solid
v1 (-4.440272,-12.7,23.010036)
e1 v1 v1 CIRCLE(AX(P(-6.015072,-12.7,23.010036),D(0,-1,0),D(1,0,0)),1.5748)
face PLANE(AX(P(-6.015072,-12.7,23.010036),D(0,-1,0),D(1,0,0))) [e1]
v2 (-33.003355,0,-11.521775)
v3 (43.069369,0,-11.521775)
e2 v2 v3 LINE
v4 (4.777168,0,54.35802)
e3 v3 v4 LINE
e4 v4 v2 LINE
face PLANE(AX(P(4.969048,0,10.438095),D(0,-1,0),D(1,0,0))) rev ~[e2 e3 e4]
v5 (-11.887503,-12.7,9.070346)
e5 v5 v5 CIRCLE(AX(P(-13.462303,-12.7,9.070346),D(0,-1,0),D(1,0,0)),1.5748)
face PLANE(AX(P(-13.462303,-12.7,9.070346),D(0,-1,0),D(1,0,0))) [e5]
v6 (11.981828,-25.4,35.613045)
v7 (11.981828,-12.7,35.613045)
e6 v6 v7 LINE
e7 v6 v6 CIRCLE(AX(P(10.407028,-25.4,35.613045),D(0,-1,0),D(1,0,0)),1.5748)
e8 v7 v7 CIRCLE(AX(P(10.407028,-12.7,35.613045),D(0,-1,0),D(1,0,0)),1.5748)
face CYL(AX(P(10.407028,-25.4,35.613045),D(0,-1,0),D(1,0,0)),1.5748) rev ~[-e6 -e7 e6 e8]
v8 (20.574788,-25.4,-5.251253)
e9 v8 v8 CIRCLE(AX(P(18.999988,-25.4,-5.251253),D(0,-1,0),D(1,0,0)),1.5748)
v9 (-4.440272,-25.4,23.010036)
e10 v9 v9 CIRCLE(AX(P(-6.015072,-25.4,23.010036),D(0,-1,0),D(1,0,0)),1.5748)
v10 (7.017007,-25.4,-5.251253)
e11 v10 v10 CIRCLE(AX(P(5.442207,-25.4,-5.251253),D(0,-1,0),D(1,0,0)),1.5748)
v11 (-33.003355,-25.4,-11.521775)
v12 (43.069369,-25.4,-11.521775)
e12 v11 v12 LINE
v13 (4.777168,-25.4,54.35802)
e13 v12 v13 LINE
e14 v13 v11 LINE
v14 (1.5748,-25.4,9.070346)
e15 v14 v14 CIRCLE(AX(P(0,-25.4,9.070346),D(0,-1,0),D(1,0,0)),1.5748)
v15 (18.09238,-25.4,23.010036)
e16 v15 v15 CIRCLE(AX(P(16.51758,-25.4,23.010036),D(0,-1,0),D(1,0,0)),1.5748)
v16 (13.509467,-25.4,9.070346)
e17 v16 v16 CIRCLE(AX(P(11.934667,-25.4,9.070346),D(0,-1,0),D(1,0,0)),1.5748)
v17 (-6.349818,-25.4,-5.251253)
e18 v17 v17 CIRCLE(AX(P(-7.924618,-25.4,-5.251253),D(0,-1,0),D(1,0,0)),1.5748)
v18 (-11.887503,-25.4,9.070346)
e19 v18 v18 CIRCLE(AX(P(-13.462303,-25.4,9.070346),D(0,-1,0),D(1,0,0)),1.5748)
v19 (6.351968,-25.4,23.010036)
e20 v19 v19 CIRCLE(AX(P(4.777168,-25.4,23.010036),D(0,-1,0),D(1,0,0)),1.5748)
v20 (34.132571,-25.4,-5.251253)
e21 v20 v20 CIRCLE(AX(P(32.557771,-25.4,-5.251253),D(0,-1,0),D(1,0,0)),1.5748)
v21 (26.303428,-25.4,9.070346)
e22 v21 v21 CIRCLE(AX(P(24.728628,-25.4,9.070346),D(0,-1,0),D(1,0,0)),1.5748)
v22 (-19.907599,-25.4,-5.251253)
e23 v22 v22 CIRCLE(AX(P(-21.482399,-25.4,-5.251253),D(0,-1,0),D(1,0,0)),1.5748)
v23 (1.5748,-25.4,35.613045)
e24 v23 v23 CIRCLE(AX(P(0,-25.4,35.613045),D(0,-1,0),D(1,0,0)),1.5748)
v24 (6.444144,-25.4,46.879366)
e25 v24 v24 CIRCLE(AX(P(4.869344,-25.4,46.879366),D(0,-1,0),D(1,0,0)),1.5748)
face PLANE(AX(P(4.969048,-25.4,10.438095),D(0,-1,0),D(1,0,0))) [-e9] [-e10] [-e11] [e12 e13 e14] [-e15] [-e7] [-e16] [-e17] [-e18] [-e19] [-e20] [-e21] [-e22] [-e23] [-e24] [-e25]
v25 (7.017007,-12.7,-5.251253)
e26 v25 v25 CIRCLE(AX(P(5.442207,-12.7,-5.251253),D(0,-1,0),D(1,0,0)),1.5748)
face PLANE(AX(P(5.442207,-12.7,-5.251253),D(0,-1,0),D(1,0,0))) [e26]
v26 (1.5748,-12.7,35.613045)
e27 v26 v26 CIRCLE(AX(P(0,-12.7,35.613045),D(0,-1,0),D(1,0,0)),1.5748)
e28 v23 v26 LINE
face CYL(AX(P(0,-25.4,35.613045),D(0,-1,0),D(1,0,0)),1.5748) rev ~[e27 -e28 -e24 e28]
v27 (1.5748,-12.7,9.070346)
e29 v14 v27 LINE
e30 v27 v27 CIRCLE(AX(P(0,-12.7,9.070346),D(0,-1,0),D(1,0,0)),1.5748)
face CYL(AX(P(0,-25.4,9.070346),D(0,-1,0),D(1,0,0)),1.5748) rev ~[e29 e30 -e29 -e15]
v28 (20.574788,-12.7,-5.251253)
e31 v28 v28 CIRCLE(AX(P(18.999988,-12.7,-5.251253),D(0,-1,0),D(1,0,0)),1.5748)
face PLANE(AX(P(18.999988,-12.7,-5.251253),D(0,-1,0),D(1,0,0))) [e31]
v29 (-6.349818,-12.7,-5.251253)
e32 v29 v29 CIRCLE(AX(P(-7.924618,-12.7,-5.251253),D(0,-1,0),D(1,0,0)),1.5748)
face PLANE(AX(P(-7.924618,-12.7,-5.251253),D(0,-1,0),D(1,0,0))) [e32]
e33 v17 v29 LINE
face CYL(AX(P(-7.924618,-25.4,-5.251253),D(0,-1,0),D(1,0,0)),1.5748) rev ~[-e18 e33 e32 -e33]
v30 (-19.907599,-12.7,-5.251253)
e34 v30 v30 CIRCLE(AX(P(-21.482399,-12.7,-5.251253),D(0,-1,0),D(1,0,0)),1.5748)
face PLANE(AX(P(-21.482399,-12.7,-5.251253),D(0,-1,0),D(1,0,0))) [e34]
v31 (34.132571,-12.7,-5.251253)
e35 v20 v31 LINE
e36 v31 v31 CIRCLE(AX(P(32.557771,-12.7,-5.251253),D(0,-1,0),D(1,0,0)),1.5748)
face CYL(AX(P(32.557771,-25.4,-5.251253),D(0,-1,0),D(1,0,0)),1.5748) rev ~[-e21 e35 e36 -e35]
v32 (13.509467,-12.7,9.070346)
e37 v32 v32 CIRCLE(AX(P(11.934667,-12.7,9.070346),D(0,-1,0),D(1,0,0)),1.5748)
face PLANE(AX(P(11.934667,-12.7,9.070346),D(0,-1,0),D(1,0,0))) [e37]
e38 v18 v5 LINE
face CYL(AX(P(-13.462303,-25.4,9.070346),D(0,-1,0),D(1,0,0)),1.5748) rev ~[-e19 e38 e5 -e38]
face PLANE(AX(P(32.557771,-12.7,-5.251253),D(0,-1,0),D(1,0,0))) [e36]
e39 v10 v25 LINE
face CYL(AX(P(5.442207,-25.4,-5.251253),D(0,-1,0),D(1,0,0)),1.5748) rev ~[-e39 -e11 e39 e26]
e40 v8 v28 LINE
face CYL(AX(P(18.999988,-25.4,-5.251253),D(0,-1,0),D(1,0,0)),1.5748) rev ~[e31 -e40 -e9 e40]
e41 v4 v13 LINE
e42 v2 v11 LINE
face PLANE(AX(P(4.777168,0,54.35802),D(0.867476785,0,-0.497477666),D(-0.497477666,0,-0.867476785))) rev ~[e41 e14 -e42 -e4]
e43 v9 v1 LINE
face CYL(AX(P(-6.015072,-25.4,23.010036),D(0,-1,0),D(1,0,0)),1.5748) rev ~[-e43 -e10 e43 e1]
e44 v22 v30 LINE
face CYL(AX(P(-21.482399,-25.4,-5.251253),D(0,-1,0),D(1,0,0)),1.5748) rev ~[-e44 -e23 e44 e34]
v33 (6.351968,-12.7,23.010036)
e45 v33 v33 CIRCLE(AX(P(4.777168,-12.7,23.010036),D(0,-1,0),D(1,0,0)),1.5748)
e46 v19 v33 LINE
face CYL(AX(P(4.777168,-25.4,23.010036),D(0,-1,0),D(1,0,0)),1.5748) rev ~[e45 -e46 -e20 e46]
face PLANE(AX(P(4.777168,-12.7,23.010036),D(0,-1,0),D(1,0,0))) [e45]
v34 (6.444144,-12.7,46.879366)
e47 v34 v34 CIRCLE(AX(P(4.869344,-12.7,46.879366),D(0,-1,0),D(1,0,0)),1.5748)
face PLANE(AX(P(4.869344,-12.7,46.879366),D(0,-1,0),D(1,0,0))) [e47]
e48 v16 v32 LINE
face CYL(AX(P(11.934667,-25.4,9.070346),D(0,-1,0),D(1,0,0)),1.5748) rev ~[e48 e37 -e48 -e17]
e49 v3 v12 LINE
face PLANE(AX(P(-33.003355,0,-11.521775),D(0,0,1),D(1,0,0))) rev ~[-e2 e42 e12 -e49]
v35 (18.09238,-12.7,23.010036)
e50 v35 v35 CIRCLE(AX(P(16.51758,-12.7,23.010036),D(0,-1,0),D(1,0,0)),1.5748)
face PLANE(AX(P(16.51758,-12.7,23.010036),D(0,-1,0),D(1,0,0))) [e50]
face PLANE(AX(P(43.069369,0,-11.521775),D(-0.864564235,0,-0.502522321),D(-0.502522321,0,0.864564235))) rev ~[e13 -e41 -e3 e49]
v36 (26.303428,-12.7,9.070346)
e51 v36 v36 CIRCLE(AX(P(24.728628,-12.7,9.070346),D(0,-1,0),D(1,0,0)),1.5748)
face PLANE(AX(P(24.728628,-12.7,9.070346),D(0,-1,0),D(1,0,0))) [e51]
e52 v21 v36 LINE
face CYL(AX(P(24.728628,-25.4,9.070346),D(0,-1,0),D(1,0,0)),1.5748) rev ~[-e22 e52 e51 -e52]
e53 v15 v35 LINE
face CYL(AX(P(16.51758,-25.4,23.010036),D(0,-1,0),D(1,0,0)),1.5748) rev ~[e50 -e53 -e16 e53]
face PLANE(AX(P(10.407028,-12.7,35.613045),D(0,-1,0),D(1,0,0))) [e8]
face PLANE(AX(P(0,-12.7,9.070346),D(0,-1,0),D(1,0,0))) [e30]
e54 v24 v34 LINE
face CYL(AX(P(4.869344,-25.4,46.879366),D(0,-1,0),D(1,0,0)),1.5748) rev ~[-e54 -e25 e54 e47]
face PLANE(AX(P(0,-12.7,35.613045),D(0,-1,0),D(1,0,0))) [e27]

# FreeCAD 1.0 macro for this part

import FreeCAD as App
import Part
import Sketcher
from FreeCAD import Vector
Q = App.Units.Quantity

doc = App.newDocument("Part")
body = doc.addObject("PartDesign::Body", "Body")

# Sketch on XZ plane
sketch1 = body.newObject("Sketcher::SketchObject", "Sketch")
sketch1.AttachmentSupport = (doc.getObject("XZ_Plane"), [""])
sketch1.MapMode = "FlatFace"
sketch1.addGeometry([
    Part.LineSegment(Vector(5, 54, 0), Vector(-33, -12, 0)),
    Part.LineSegment(Vector(-33, -12, 0), Vector(43, -12, 0)),
    Part.LineSegment(Vector(43, -12, 0), Vector(5, 54, 0)),
], False)
sketch1.addConstraint([
    Sketcher.Constraint("Coincident", 0, 2, 1, 1),
    Sketcher.Constraint("Coincident", 1, 2, 2, 1),
    Sketcher.Constraint("Coincident", 2, 2, 0, 1),
    Sketcher.Constraint("Horizontal", 1),
    Sketcher.Constraint("Distance", 2, Q("3 in")),
    Sketcher.Constraint("DistanceX", 2, 2, 1, 2, Q("38.292201 mm")),
    Sketcher.Constraint("Distance", 0, Q("75.944159 mm")),
    Sketcher.Constraint("DistanceX", -1, 1, 1, 2, Q("43.069369 mm")),
    Sketcher.Constraint("DistanceY", -1, 1, 2, 2, Q("54.35802 mm")),
])
pad1 = body.newObject("PartDesign::Pad", "Pad")
pad1.Profile = sketch1
pad1.Length = Q("1 in")

# Sketch on XZ plane
sketch2 = body.newObject("Sketcher::SketchObject", "Sketch001")
sketch2.AttachmentSupport = (doc.getObject("XZ_Plane"), [""])
sketch2.MapMode = "FlatFace"
sketch2.AttachmentOffset = App.Placement(Vector(0, 0, 1 * 25.4), App.Rotation())
sketch2.addGeometry([
    Part.Circle(Vector(-21.5, -5.3, 0), Vector(0, 0, 1), 1.6),  # 0
    Part.Circle(Vector(-7.9, -5.3, 0), Vector(0, 0, 1), 1.6),  # 1
    Part.Circle(Vector(5.4, -5.3, 0), Vector(0, 0, 1), 1.6),  # 2
    Part.Circle(Vector(19, -5.3, 0), Vector(0, 0, 1), 1.6),  # 3
    Part.Circle(Vector(32.6, -5.3, 0), Vector(0, 0, 1), 1.6),  # 4
], False)
sketch2.addConstraint([
    Sketcher.Constraint("Equal", 0, 1),
    Sketcher.Constraint("Equal", 1, 2),
    Sketcher.Constraint("Equal", 2, 3),
    Sketcher.Constraint("Equal", 3, 4),
    Sketcher.Constraint("Horizontal", 0, 3, 1, 3),
    Sketcher.Constraint("Horizontal", 1, 3, 2, 3),
    Sketcher.Constraint("Horizontal", 2, 3, 3, 3),
    Sketcher.Constraint("Horizontal", 3, 3, 4, 3),
    Sketcher.Constraint("Diameter", 0, Q("0.124 in")),
    Sketcher.Constraint("DistanceX", 0, 3, -1, 1, Q("21.482399 mm")),
    Sketcher.Constraint("DistanceX", -1, 1, 4, 3, Q("32.557771 mm")),
    Sketcher.Constraint("DistanceX", 0, 3, 1, 3, Q("13.557781 mm")),
    Sketcher.Constraint("DistanceX", 2, 3, 3, 3, Q("13.557781 mm")),
    Sketcher.Constraint("DistanceY", 0, 3, -1, 1, Q("5.251253 mm")),
    Sketcher.Constraint("DistanceX", -1, 1, 2, 3, Q("5.442207 mm")),
])
pocket1 = body.newObject("PartDesign::Pocket", "Pocket")
pocket1.Profile = sketch2
pocket1.Length = Q("0.5 in")

# Sketch on XZ plane
sketch3 = body.newObject("Sketcher::SketchObject", "Sketch002")
sketch3.AttachmentSupport = (doc.getObject("XZ_Plane"), [""])
sketch3.MapMode = "FlatFace"
sketch3.AttachmentOffset = App.Placement(Vector(0, 0, 1 * 25.4), App.Rotation())
sketch3.addGeometry([
    Part.Circle(Vector(-13.5, 9.1, 0), Vector(0, 0, 1), 1.6),
    Part.Circle(Vector(0, 9.1, 0), Vector(0, 0, 1), 1.6),
    Part.Circle(Vector(11.9, 9.1, 0), Vector(0, 0, 1), 1.6),
    Part.Circle(Vector(24.7, 9.1, 0), Vector(0, 0, 1), 1.6),
], False)
sketch3.addConstraint([
    Sketcher.Constraint("Equal", 0, 1),
    Sketcher.Constraint("Equal", 1, 2),
    Sketcher.Constraint("Equal", 2, 3),
    Sketcher.Constraint("PointOnObject", 1, 3, -2),
    Sketcher.Constraint("Horizontal", 0, 3, 1, 3),
    Sketcher.Constraint("Horizontal", 1, 3, 2, 3),
    Sketcher.Constraint("Horizontal", 2, 3, 3, 3),
    Sketcher.Constraint("Diameter", 0, Q("0.124 in")),
    Sketcher.Constraint("DistanceX", -1, 1, 3, 3, Q("24.728628 mm")),
    Sketcher.Constraint("DistanceX", 0, 3, 2, 3, Q("25.39697 mm")),
    Sketcher.Constraint("DistanceX", 2, 3, 3, 3, Q("12.793961 mm")),
    Sketcher.Constraint("DistanceY", -1, 1, 0, 3, Q("9.070346 mm")),
])
pocket2 = body.newObject("PartDesign::Pocket", "Pocket001")
pocket2.Profile = sketch3
pocket2.Length = Q("0.5 in")

# Sketch on XZ plane
sketch4 = body.newObject("Sketcher::SketchObject", "Sketch003")
sketch4.AttachmentSupport = (doc.getObject("XZ_Plane"), [""])
sketch4.MapMode = "FlatFace"
sketch4.AttachmentOffset = App.Placement(Vector(0, 0, 1 * 25.4), App.Rotation())
sketch4.addGeometry([
    Part.Circle(Vector(-6, 23, 0), Vector(0, 0, 1), 1.6),
    Part.Circle(Vector(4.8, 23, 0), Vector(0, 0, 1), 1.6),
    Part.Circle(Vector(16.5, 23, 0), Vector(0, 0, 1), 1.6),
], False)
sketch4.addConstraint([
    Sketcher.Constraint("Equal", 0, 1),
    Sketcher.Constraint("Equal", 1, 2),
    Sketcher.Constraint("Horizontal", 0, 3, 1, 3),
    Sketcher.Constraint("Horizontal", 1, 3, 2, 3),
    Sketcher.Constraint("Diameter", 0, Q("0.124 in")),
    Sketcher.Constraint("DistanceX", -1, 1, 2, 3, Q("16.51758 mm")),
    Sketcher.Constraint("DistanceX", 0, 3, 1, 3, Q("10.79224 mm")),
    Sketcher.Constraint("DistanceX", 1, 3, 2, 3, Q("11.740412 mm")),
    Sketcher.Constraint("DistanceY", -1, 1, 0, 3, Q("23.010036 mm")),
])
pocket3 = body.newObject("PartDesign::Pocket", "Pocket002")
pocket3.Profile = sketch4
pocket3.Length = Q("0.5 in")

# Sketch on XZ plane
sketch5 = body.newObject("Sketcher::SketchObject", "Sketch004")
sketch5.AttachmentSupport = (doc.getObject("XZ_Plane"), [""])
sketch5.MapMode = "FlatFace"
sketch5.AttachmentOffset = App.Placement(Vector(0, 0, 1 * 25.4), App.Rotation())
sketch5.addGeometry([
    Part.Circle(Vector(0, 35.6, 0), Vector(0, 0, 1), 1.6),
    Part.Circle(Vector(10.4, 35.6, 0), Vector(0, 0, 1), 1.6),
], False)
sketch5.addConstraint([
    Sketcher.Constraint("Equal", 0, 1),
    Sketcher.Constraint("PointOnObject", 0, 3, -2),
    Sketcher.Constraint("Horizontal", 0, 3, 1, 3),
    Sketcher.Constraint("Diameter", 0, Q("0.124 in")),
    Sketcher.Constraint("DistanceY", -1, 1, 0, 3, Q("35.613045 mm")),
    Sketcher.Constraint("DistanceX", -1, 1, 1, 3, Q("10.407028 mm")),
])
pocket4 = body.newObject("PartDesign::Pocket", "Pocket003")
pocket4.Profile = sketch5
pocket4.Length = Q("0.5 in")

# Sketch on XZ plane
sketch6 = body.newObject("Sketcher::SketchObject", "Sketch005")
sketch6.AttachmentSupport = (doc.getObject("XZ_Plane"), [""])
sketch6.MapMode = "FlatFace"
sketch6.AttachmentOffset = App.Placement(Vector(0, 0, 1 * 25.4), App.Rotation())
sketch6.addGeometry(Part.Circle(Vector(4.9, 46.9, 0), Vector(0, 0, 1), 1.6), False)
sketch6.addConstraint([
    Sketcher.Constraint("Diameter", 0, Q("0.124 in")),
    Sketcher.Constraint("DistanceX", -1, 1, 0, 3, Q("4.869344 mm")),
    Sketcher.Constraint("DistanceY", -1, 1, 0, 3, Q("46.879366 mm")),
])
pocket5 = body.newObject("PartDesign::Pocket", "Pocket004")
pocket5.Profile = sketch6
pocket5.Length = Q("0.5 in")

doc.recompute()
